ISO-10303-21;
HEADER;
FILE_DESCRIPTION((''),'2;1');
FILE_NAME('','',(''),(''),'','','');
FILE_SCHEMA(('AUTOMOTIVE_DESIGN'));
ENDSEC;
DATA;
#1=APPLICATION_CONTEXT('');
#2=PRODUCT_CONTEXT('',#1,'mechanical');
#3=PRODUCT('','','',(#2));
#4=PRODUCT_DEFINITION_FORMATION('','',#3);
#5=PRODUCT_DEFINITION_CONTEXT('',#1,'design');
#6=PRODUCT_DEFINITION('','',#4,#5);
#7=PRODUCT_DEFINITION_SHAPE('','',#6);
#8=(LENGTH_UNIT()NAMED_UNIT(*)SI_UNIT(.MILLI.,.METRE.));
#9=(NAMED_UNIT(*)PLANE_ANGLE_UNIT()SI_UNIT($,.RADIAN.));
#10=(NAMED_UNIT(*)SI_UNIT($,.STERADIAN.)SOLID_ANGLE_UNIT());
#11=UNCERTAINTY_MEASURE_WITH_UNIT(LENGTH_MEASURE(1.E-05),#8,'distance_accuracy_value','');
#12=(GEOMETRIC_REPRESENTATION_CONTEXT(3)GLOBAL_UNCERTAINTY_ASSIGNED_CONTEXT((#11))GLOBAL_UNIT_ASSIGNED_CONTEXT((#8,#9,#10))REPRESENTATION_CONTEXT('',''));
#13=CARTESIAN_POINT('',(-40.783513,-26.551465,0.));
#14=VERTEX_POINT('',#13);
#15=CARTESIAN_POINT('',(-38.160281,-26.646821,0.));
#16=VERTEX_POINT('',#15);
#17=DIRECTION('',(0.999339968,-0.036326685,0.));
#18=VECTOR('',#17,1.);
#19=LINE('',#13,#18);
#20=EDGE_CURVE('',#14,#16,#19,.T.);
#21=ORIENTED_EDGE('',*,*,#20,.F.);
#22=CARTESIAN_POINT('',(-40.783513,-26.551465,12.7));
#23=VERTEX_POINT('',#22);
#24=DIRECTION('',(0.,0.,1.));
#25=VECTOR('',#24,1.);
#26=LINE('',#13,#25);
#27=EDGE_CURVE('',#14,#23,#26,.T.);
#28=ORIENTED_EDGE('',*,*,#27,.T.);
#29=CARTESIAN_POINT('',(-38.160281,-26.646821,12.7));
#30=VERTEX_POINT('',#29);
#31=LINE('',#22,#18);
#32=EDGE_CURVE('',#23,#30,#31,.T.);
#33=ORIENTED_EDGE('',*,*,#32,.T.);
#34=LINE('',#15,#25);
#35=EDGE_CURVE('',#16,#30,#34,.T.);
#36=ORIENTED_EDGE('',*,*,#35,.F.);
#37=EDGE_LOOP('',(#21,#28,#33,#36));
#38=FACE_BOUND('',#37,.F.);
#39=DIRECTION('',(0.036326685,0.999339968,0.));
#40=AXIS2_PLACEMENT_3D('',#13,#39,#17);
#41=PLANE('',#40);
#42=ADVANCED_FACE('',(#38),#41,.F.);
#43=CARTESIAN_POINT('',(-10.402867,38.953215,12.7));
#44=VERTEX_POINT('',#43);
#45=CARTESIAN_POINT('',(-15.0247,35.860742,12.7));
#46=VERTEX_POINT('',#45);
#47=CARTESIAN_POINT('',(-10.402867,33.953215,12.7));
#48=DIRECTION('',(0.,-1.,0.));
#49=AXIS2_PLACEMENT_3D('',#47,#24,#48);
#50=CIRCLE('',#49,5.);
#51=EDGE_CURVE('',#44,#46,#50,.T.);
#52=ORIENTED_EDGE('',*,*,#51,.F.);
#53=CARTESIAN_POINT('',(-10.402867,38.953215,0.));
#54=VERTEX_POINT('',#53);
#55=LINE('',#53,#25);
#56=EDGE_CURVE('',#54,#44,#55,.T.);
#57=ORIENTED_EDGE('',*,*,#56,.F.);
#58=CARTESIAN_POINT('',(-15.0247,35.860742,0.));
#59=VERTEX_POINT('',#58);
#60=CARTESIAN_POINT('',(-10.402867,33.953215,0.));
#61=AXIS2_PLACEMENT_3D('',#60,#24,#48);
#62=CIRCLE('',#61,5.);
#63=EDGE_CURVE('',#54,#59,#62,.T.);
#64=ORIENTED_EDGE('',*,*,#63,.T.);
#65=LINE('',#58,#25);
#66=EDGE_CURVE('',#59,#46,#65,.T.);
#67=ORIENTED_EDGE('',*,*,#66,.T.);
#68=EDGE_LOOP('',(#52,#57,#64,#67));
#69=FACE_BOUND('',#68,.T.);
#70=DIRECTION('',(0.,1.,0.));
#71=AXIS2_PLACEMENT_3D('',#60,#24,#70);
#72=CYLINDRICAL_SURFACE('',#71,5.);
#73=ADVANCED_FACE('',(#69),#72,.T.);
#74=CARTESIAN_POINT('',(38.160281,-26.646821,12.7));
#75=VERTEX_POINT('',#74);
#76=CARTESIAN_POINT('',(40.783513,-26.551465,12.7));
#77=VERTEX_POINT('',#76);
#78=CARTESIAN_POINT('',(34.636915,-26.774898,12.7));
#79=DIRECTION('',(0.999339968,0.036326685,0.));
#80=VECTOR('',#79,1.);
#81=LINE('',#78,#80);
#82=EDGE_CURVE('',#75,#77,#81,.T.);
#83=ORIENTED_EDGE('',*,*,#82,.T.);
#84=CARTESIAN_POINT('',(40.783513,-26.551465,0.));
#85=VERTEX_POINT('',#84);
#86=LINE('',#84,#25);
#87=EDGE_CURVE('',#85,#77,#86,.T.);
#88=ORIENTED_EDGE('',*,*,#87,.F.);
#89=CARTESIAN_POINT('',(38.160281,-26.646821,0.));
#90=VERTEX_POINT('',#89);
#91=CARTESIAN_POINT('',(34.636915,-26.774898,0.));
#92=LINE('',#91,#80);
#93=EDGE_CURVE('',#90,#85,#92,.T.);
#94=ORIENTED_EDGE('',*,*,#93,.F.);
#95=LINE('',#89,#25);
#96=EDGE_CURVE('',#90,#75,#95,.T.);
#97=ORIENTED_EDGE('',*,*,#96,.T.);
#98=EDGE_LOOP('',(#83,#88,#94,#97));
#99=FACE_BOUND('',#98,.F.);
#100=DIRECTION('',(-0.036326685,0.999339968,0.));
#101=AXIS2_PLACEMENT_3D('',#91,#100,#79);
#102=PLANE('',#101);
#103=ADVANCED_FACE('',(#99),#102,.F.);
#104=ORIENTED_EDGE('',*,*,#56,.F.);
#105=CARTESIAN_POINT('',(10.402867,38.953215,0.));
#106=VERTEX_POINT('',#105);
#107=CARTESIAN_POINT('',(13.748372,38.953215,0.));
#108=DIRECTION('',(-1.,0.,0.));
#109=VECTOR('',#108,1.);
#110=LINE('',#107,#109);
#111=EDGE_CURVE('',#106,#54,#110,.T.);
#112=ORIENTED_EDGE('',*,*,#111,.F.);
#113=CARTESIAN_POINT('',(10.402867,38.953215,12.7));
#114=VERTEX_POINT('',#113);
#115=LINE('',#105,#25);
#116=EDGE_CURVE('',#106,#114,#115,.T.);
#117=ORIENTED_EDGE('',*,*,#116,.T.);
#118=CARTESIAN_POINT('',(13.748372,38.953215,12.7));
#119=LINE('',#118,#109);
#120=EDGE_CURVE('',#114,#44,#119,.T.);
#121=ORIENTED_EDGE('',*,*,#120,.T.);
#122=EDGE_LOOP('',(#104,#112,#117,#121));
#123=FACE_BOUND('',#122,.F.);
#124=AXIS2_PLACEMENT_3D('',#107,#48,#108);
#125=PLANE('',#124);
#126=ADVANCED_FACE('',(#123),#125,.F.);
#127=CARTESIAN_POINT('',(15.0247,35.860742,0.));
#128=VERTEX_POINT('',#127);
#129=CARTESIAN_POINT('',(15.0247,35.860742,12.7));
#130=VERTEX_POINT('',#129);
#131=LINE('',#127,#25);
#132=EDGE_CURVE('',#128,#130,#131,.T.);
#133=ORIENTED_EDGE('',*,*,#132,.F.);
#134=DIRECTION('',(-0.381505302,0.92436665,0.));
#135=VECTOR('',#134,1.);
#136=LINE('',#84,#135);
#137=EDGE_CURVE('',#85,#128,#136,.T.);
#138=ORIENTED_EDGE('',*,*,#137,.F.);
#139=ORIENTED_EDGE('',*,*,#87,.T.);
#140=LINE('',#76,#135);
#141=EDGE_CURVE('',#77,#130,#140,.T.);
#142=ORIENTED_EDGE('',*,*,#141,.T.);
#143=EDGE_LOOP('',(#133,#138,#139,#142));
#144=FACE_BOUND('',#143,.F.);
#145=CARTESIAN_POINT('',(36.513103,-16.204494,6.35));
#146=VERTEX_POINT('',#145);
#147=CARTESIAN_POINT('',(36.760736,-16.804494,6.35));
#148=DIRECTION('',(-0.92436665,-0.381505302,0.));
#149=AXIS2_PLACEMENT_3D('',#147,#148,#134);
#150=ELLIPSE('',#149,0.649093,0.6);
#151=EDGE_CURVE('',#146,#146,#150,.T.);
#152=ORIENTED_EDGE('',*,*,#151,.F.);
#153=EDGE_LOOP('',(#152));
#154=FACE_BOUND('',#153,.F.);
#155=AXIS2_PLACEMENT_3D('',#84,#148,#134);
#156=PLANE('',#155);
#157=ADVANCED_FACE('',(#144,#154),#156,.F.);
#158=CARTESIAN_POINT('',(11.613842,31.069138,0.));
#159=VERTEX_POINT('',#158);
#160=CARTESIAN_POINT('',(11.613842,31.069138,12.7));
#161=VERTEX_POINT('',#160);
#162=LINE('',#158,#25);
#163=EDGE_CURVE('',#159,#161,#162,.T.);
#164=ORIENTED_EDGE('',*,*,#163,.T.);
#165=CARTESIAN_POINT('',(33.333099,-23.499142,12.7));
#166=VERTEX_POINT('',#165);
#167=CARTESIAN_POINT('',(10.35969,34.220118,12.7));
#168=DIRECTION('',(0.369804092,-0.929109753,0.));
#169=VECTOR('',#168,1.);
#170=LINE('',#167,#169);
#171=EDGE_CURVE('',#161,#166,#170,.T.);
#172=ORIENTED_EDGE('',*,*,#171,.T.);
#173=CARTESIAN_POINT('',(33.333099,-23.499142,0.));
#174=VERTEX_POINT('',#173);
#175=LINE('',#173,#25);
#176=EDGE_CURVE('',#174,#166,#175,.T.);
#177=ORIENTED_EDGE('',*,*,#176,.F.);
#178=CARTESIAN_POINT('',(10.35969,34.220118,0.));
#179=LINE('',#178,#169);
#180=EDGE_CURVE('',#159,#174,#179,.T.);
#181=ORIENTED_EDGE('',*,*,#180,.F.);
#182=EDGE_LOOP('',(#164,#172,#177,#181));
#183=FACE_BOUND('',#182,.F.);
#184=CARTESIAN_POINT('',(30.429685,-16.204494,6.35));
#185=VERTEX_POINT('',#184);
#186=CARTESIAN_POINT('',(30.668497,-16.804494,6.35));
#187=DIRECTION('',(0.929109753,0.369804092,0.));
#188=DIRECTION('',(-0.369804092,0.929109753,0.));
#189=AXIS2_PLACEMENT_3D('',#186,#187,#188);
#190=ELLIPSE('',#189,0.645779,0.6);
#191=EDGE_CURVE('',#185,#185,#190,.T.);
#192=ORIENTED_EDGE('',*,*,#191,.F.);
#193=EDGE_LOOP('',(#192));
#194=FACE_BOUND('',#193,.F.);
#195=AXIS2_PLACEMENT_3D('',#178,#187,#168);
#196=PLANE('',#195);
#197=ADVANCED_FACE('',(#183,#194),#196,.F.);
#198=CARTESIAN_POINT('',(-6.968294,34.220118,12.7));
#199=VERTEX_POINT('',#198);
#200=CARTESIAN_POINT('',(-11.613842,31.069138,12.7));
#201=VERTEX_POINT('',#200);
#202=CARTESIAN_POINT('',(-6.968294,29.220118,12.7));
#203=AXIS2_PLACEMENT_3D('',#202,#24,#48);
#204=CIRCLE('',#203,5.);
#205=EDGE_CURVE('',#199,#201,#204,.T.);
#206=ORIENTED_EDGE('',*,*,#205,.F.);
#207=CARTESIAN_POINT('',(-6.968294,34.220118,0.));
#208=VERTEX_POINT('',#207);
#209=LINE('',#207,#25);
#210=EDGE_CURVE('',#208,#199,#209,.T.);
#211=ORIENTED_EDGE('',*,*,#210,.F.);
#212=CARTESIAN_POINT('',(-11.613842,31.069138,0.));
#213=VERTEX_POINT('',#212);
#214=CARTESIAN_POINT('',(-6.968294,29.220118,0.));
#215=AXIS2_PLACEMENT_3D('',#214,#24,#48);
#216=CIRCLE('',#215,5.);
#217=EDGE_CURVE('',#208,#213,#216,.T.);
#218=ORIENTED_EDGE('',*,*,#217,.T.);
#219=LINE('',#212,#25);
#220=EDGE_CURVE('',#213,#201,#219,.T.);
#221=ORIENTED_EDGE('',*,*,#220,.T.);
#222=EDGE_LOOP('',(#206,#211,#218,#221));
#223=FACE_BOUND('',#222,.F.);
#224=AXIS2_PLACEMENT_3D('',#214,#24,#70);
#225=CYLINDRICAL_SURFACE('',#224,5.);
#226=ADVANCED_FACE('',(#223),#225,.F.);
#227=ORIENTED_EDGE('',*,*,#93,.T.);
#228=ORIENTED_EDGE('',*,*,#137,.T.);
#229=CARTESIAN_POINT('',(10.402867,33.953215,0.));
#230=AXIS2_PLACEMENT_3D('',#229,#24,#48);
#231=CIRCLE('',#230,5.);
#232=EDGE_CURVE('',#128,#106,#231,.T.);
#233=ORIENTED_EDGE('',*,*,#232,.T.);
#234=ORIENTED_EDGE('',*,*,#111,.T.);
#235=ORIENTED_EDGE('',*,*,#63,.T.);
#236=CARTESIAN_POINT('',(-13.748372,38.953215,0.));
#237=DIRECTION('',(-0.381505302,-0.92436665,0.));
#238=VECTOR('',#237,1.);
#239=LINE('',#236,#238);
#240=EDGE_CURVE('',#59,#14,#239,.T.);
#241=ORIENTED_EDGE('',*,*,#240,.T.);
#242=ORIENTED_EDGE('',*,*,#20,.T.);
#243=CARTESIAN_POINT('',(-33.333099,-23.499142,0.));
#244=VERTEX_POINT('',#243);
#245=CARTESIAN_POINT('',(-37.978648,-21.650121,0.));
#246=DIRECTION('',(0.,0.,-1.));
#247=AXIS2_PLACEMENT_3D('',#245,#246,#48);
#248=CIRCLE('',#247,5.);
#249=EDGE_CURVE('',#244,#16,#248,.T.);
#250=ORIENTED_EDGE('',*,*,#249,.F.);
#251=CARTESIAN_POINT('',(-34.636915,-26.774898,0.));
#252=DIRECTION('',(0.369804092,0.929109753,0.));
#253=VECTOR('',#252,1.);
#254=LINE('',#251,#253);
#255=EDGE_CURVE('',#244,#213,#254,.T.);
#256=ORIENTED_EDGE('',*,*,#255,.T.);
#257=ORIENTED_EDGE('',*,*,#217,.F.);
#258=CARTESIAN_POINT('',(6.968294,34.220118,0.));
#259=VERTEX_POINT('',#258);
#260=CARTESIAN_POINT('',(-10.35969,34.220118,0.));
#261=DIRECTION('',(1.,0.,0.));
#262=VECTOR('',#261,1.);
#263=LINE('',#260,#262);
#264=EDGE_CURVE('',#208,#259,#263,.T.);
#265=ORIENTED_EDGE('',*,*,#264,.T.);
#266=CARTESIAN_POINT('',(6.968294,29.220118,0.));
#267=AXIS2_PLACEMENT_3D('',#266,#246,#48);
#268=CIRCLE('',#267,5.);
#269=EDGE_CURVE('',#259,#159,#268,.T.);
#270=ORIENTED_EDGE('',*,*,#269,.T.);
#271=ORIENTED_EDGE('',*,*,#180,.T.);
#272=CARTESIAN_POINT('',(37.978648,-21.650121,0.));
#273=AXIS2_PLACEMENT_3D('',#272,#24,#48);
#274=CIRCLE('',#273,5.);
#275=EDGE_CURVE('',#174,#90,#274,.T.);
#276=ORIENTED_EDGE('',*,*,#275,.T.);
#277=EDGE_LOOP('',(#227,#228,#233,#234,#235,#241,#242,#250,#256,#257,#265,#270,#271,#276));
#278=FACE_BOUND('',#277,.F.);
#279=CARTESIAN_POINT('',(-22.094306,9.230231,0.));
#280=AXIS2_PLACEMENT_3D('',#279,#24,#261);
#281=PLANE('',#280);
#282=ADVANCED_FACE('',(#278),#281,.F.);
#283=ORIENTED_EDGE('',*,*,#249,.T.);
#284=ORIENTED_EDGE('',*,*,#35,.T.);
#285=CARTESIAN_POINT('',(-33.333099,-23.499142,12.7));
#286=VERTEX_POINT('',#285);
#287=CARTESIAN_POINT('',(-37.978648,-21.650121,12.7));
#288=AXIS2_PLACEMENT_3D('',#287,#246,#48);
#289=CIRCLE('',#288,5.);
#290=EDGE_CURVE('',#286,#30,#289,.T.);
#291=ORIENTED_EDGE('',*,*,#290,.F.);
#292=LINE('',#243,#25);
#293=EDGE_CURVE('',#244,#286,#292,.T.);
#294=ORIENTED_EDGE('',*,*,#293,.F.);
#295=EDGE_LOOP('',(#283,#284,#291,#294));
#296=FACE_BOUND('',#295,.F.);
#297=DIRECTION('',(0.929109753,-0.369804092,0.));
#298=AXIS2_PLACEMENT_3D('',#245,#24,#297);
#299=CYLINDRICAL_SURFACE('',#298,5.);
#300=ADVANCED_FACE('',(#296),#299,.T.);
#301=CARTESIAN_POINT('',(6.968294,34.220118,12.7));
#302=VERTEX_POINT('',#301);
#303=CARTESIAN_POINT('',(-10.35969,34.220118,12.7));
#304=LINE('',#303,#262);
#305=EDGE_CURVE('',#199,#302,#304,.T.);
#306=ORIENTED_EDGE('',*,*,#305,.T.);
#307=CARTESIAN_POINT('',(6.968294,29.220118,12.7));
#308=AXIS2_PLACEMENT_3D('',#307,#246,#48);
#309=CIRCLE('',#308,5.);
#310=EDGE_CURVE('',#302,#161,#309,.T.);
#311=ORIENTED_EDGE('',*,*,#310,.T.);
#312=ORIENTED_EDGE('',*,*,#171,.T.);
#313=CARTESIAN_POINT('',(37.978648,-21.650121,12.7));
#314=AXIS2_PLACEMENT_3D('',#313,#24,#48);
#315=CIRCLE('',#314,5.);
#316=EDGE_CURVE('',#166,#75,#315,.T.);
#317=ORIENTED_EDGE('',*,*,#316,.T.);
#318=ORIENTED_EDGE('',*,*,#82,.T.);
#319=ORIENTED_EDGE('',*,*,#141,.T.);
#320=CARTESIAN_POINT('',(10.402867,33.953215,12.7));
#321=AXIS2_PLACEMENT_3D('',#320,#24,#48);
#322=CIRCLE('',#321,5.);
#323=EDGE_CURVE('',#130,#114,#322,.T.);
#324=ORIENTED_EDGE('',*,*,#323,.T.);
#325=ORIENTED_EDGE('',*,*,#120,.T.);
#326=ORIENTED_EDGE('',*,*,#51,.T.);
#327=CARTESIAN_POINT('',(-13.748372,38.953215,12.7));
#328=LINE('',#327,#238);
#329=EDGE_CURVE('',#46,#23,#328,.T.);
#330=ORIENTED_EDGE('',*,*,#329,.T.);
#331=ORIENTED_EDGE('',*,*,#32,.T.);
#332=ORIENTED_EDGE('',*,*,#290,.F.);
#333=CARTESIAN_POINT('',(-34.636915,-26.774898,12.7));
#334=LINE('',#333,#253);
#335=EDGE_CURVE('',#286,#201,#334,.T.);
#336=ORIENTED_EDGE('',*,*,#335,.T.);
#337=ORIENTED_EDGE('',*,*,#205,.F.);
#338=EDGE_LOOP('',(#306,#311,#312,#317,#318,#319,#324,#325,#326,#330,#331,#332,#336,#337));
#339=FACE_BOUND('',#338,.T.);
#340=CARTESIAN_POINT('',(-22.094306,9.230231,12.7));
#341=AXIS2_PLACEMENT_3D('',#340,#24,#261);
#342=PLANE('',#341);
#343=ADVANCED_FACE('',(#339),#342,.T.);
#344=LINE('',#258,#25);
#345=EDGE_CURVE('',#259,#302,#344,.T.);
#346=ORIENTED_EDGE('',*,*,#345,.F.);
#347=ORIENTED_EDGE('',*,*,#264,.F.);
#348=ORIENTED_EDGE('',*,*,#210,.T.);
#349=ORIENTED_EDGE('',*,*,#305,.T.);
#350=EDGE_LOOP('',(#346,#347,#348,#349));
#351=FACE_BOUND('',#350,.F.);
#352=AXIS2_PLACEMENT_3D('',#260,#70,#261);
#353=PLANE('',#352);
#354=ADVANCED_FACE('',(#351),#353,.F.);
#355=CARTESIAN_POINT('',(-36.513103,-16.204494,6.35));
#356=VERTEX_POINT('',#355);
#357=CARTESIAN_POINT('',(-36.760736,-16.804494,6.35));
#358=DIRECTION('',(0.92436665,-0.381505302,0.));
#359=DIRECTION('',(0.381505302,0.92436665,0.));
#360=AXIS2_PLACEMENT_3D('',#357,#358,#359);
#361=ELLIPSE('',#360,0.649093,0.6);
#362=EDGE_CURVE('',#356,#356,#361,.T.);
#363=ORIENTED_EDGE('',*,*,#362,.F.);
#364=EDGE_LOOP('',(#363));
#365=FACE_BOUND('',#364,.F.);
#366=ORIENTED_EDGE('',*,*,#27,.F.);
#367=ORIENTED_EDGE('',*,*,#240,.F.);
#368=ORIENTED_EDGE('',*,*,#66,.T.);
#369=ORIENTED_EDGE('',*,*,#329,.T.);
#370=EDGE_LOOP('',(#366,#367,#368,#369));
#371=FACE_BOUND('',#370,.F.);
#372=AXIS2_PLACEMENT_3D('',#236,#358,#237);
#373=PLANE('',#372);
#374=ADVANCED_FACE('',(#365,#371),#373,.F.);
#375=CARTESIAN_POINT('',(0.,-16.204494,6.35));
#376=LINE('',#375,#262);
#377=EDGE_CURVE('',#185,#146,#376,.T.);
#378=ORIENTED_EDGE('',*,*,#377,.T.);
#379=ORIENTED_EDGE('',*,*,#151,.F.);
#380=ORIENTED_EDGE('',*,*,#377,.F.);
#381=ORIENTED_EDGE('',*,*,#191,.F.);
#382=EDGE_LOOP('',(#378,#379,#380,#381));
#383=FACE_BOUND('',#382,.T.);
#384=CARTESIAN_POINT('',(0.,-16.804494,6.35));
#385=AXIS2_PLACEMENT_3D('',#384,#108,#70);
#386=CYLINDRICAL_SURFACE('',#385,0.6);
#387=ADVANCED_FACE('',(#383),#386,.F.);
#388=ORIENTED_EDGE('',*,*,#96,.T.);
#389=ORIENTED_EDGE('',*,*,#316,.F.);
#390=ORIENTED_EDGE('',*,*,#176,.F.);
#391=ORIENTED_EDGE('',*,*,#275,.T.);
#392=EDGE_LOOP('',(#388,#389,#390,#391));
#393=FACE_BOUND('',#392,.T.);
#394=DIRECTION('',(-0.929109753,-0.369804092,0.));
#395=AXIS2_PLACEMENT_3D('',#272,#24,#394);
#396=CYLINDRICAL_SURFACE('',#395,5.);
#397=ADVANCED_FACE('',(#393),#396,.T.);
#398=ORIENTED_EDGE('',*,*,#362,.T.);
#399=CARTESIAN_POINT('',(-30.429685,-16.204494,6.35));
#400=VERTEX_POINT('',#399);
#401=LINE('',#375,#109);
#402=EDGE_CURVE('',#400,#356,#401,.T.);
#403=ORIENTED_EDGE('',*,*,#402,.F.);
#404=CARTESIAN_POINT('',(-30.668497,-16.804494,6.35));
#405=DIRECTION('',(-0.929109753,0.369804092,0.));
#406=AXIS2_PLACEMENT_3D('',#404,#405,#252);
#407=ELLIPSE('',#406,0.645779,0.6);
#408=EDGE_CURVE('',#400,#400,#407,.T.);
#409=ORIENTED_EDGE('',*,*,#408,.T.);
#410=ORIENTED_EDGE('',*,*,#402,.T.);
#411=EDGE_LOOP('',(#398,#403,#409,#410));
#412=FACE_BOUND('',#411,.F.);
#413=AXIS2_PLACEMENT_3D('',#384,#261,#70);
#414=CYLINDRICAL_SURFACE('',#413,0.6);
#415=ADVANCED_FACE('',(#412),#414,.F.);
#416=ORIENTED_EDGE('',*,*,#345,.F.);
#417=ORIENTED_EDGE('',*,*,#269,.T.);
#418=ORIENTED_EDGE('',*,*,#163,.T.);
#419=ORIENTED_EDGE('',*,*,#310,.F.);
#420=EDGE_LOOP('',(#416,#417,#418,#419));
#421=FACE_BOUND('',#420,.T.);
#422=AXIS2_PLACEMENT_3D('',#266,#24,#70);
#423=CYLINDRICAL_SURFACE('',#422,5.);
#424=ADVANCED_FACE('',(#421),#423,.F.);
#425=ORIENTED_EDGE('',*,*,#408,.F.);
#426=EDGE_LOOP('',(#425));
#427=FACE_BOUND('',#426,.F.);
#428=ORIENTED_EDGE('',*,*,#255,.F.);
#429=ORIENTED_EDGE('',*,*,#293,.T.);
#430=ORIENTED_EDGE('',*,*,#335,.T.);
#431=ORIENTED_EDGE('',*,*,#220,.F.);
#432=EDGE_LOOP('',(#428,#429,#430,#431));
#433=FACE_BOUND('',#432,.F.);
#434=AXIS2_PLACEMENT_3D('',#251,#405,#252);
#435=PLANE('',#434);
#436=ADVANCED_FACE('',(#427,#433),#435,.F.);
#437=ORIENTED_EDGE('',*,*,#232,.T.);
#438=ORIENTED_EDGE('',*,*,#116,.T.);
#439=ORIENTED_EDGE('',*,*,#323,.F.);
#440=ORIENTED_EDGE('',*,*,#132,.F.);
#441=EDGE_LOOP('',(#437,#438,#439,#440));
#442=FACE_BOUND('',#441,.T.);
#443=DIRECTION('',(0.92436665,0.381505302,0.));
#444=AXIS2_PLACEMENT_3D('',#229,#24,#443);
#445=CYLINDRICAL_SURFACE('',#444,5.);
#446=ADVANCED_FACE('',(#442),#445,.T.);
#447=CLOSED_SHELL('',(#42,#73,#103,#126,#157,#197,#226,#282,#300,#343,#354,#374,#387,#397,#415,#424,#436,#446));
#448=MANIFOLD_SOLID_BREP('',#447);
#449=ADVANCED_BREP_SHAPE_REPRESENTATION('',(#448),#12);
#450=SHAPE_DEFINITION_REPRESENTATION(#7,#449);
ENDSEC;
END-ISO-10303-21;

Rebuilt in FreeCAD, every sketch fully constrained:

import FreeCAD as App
import Part
import Sketcher
from FreeCAD import Vector
Q = App.Units.Quantity


def edges_at(feature, points):
    """Names of the edges that pass closest to the given points."""
    edges = feature.Shape.Edges
    near = lambda p: min(range(len(edges)), key=lambda i: edges[i].distToShape(Part.Vertex(*p))[0])
    return sorted({f"Edge{near(p) + 1}" for p in points})


def add_polygon(sketch, points):
    """Adds a closed chain of lines whose ends are joined by coincident constraints."""
    first, n = sketch.GeometryCount, len(points)
    for a, b in zip(points, points[1:] + points[:1]):
        sketch.addGeometry(Part.LineSegment(App.Vector(*a, 0), App.Vector(*b, 0)), False)
    for i in range(n):
        sketch.addConstraint(Sketcher.Constraint("Coincident", first + i, 2, first + (i + 1) % n, 1))

doc = App.newDocument("Part")
body = doc.addObject("PartDesign::Body", "Body")

# Sketch on XY plane
sketch1 = body.newObject("Sketcher::SketchObject", "Sketch")
sketch1.AttachmentSupport = (doc.getObject("XY_Plane"), [""])
sketch1.MapMode = "FlatFace"
add_polygon(sketch1, [(-10.35969, 34.220118), (10.35969, 34.220118), (34.636915, -26.774898), (40.783513, -26.551465), (13.748372, 38.953215), (-13.748372, 38.953215), (-40.783513, -26.551465), (-34.636915, -26.774898)])  # lines 0-7
sketch1.addConstraint(Sketcher.Constraint("Horizontal", 0))
sketch1.addConstraint(Sketcher.Constraint("Horizontal", 4))
sketch1.addConstraint(Sketcher.Constraint("Symmetric", 2, 2, 5, 2, -2))
sketch1.addConstraint(Sketcher.Constraint("Symmetric", 1, 2, 6, 2, -2))
sketch1.addConstraint(Sketcher.Constraint("Equal", 3, 5))
sketch1.addConstraint(Sketcher.Constraint("Equal", 1, 7))
sketch1.addConstraint(Sketcher.Constraint("DistanceX", 0, 1, 0, 2, Q("20.71938 mm")))
sketch1.addConstraint(Sketcher.Constraint("DistanceY", 1, 2, -1, 1, Q("26.774898 mm")))
sketch1.addConstraint(Sketcher.Constraint("Distance", 1, Q("65.648881 mm")))
sketch1.addConstraint(Sketcher.Constraint("Distance", 3, Q("70.864391 mm")))
sketch1.addConstraint(Sketcher.Constraint("DistanceX", 4, 2, 4, 1, Q("27.496744 mm")))
sketch1.addConstraint(Sketcher.Constraint("DistanceX", 3, 2, 2, 2, Q("27.035141 mm")))
sketch1.addConstraint(Sketcher.Constraint("DistanceX", 5, 2, 1, 2, Q("75.420428 mm")))
sketch1.addConstraint(Sketcher.Constraint("Distance", 2, Q("6.150658 mm")))
pad1 = body.newObject("PartDesign::Pad", "Pad")
pad1.Profile = sketch1
pad1.Length = 12.7

# Sketch on YZ plane
sketch2 = body.newObject("Sketcher::SketchObject", "Sketch001")
sketch2.AttachmentSupport = (doc.getObject("YZ_Plane"), [""])
sketch2.MapMode = "FlatFace"
sketch2.addGeometry(Part.Circle(Vector(-16.8, 6.3, 0), Vector(0, 0, 1), 0.6), False)
sketch2.addConstraint(Sketcher.Constraint("Diameter", 0, Q("1.2 mm")))
sketch2.addConstraint(Sketcher.Constraint("DistanceY", -1, 1, 0, 3, Q("6.35 mm")))
sketch2.addConstraint(Sketcher.Constraint("DistanceX", 0, 3, -1, 1, Q("16.804494 mm")))
pocket1 = body.newObject("PartDesign::Pocket", "Pocket")
pocket1.Profile = sketch2
pocket1.Type = "ThroughAll"
pocket1.Midplane = True
doc.recompute()

fillet = body.newObject("PartDesign::Fillet", "Fillet")
fillet.Base = (pocket1, edges_at(pocket1, [
    (13.748, 38.953, 6.35),
    (-13.748, 38.953, 6.35),
    (-34.637, -26.775, 6.35),
    (34.637, -26.775, 6.35),
    (-10.36, 34.22, 6.35),
    (10.36, 34.22, 6.35),
]))
fillet.Radius = 5

doc.recompute()
